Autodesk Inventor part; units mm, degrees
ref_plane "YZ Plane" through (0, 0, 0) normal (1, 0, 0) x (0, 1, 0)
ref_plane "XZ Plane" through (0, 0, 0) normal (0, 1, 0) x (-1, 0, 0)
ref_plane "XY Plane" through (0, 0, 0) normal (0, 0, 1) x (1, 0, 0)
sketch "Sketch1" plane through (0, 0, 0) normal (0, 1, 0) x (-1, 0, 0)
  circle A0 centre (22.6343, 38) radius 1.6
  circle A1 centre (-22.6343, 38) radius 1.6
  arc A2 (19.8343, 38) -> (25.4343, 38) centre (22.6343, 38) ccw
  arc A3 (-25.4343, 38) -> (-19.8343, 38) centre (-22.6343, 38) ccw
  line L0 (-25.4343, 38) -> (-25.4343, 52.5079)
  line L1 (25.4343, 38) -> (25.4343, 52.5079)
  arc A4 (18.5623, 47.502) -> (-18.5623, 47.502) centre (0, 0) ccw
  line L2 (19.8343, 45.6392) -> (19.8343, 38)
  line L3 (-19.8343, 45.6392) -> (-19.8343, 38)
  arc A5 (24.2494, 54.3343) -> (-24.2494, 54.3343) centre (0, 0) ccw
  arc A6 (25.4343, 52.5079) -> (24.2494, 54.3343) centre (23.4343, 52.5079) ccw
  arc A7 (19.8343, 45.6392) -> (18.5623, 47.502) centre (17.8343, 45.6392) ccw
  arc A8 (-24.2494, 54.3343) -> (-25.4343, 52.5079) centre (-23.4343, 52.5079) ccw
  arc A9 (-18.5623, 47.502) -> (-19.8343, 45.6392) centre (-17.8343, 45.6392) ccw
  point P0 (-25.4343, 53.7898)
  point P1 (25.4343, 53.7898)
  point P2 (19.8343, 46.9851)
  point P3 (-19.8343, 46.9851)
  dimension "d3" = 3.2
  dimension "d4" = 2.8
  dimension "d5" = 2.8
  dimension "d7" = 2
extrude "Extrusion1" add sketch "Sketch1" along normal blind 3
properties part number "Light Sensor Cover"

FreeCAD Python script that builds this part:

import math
import FreeCAD as App
import Part
import Sketcher

doc = App.newDocument("Part")
body = doc.addObject("PartDesign::Body", "Body")

# Sketch on XZ plane
sketch1 = doc.addObject("Sketcher::SketchObject", "Sketch")
body.addObject(sketch1)
sketch1.AttachmentSupport = (doc.XZ_Plane, [""])
sketch1.MapMode = "FlatFace"
sketch1.addGeometry([
    Part.LineSegment(App.Vector(-19.8343, 45.6392, 0), App.Vector(-19.8343, 38, 0)),  # 0
    Part.ArcOfCircle(Part.Circle(App.Vector(-22.6343, 38, 0), App.Vector(0, 0, 1), 2.8), math.radians(180), math.radians(360)),  # 1
    Part.LineSegment(App.Vector(-25.4343, 38, 0), App.Vector(-25.4343, 52.5079, 0)),  # 2
    Part.ArcOfCircle(Part.Circle(App.Vector(-23.4343, 52.5079, 0), App.Vector(0, 0, 1), 2), math.radians(114.050623), math.radians(180)),  # 3
    Part.ArcOfCircle(Part.Circle(App.Vector(0, 0, 0), App.Vector(0, 0, 1), 59.499996), math.radians(65.948792), math.radians(114.051208)),  # 4
    Part.ArcOfCircle(Part.Circle(App.Vector(23.4343, 52.5079, 0), App.Vector(0, 0, 1), 2.000031), math.radians(0), math.radians(65.949377)),  # 5
    Part.LineSegment(App.Vector(25.4343, 52.5079, 0), App.Vector(25.4343, 38, 0)),  # 6
    Part.ArcOfCircle(Part.Circle(App.Vector(22.6343, 38, 0), App.Vector(0, 0, 1), 2.8), math.radians(180), math.radians(360)),  # 7
    Part.LineSegment(App.Vector(19.8343, 38, 0), App.Vector(19.8343, 45.6392, 0)),  # 8
    Part.ArcOfCircle(Part.Circle(App.Vector(17.8343, 45.6392, 0), App.Vector(0, 0, 1), 2.000002), math.radians(0), math.radians(68.653968)),  # 9
    Part.ArcOfCircle(Part.Circle(App.Vector(0, 0, 0), App.Vector(0, 0, 1), 50.99999), math.radians(68.655992), math.radians(111.344008)),  # 10
    Part.ArcOfCircle(Part.Circle(App.Vector(-17.8343, 45.6392, 0), App.Vector(0, 0, 1), 2), math.radians(111.346032), math.radians(180)),  # 11
    Part.Circle(App.Vector(22.6343, 38, 0), App.Vector(0, 0, 1), 1.6),  # 12
    Part.Circle(App.Vector(-22.6343, 38, 0), App.Vector(0, 0, 1), 1.6),  # 13
], False)
sketch1.addConstraint([
    Sketcher.Constraint("Tangent", 0, 2, 1, 2),
    Sketcher.Constraint("Tangent", 1, 1, 2, 1),
    Sketcher.Constraint("Tangent", 2, 2, 3, 2),
    Sketcher.Constraint("Tangent", 3, 1, 4, 2),
    Sketcher.Constraint("Tangent", 4, 1, 5, 2),
    Sketcher.Constraint("Tangent", 5, 1, 6, 1),
    Sketcher.Constraint("Tangent", 6, 2, 7, 2),
    Sketcher.Constraint("Tangent", 7, 1, 8, 1),
    Sketcher.Constraint("Tangent", 8, 2, 9, 1),
    Sketcher.Constraint("Tangent", 9, 2, 10, 1),
    Sketcher.Constraint("Tangent", 10, 2, 11, 1),
    Sketcher.Constraint("Tangent", 11, 2, 0, 1),
    Sketcher.Constraint("Vertical", 0),
    Sketcher.Constraint("Vertical", 2),
    Sketcher.Constraint("Vertical", 6),
    Sketcher.Constraint("Vertical", 8),
    Sketcher.Constraint("Coincident", 4, 3, -1, 1),
    Sketcher.Constraint("Coincident", 10, 3, -1, 1),
    Sketcher.Constraint("Coincident", 12, 3, 7, 3),
    Sketcher.Constraint("Coincident", 13, 3, 1, 3),
    Sketcher.Constraint("Equal", 3, 5),
    Sketcher.Constraint("Equal", 1, 7),
    Sketcher.Constraint("Equal", 5, 9),
    Sketcher.Constraint("Equal", 9, 11),
    Sketcher.Constraint("Equal", 12, 13),
    Sketcher.Constraint("Symmetric", 1, 3, 7, 3, -2),
    Sketcher.Constraint("Radius", 3, 2.0),
    Sketcher.Constraint("Diameter", 12, 3.2),
    Sketcher.Constraint("Radius", 1, 2.8),
    Sketcher.Constraint("Radius", 10, 51.0),
    Sketcher.Constraint("Radius", 4, 59.5),
    Sketcher.Constraint("DistanceY", -1, 1, 1, 3, 38.0),
    Sketcher.Constraint("DistanceY", 2, 1, 2, 2, 14.508),
])
pad1 = doc.addObject("PartDesign::Pad", "Pad")
body.addObject(pad1)
pad1.Profile = sketch1
pad1.Length = 3
pad1.Reversed = True

doc.recompute()
